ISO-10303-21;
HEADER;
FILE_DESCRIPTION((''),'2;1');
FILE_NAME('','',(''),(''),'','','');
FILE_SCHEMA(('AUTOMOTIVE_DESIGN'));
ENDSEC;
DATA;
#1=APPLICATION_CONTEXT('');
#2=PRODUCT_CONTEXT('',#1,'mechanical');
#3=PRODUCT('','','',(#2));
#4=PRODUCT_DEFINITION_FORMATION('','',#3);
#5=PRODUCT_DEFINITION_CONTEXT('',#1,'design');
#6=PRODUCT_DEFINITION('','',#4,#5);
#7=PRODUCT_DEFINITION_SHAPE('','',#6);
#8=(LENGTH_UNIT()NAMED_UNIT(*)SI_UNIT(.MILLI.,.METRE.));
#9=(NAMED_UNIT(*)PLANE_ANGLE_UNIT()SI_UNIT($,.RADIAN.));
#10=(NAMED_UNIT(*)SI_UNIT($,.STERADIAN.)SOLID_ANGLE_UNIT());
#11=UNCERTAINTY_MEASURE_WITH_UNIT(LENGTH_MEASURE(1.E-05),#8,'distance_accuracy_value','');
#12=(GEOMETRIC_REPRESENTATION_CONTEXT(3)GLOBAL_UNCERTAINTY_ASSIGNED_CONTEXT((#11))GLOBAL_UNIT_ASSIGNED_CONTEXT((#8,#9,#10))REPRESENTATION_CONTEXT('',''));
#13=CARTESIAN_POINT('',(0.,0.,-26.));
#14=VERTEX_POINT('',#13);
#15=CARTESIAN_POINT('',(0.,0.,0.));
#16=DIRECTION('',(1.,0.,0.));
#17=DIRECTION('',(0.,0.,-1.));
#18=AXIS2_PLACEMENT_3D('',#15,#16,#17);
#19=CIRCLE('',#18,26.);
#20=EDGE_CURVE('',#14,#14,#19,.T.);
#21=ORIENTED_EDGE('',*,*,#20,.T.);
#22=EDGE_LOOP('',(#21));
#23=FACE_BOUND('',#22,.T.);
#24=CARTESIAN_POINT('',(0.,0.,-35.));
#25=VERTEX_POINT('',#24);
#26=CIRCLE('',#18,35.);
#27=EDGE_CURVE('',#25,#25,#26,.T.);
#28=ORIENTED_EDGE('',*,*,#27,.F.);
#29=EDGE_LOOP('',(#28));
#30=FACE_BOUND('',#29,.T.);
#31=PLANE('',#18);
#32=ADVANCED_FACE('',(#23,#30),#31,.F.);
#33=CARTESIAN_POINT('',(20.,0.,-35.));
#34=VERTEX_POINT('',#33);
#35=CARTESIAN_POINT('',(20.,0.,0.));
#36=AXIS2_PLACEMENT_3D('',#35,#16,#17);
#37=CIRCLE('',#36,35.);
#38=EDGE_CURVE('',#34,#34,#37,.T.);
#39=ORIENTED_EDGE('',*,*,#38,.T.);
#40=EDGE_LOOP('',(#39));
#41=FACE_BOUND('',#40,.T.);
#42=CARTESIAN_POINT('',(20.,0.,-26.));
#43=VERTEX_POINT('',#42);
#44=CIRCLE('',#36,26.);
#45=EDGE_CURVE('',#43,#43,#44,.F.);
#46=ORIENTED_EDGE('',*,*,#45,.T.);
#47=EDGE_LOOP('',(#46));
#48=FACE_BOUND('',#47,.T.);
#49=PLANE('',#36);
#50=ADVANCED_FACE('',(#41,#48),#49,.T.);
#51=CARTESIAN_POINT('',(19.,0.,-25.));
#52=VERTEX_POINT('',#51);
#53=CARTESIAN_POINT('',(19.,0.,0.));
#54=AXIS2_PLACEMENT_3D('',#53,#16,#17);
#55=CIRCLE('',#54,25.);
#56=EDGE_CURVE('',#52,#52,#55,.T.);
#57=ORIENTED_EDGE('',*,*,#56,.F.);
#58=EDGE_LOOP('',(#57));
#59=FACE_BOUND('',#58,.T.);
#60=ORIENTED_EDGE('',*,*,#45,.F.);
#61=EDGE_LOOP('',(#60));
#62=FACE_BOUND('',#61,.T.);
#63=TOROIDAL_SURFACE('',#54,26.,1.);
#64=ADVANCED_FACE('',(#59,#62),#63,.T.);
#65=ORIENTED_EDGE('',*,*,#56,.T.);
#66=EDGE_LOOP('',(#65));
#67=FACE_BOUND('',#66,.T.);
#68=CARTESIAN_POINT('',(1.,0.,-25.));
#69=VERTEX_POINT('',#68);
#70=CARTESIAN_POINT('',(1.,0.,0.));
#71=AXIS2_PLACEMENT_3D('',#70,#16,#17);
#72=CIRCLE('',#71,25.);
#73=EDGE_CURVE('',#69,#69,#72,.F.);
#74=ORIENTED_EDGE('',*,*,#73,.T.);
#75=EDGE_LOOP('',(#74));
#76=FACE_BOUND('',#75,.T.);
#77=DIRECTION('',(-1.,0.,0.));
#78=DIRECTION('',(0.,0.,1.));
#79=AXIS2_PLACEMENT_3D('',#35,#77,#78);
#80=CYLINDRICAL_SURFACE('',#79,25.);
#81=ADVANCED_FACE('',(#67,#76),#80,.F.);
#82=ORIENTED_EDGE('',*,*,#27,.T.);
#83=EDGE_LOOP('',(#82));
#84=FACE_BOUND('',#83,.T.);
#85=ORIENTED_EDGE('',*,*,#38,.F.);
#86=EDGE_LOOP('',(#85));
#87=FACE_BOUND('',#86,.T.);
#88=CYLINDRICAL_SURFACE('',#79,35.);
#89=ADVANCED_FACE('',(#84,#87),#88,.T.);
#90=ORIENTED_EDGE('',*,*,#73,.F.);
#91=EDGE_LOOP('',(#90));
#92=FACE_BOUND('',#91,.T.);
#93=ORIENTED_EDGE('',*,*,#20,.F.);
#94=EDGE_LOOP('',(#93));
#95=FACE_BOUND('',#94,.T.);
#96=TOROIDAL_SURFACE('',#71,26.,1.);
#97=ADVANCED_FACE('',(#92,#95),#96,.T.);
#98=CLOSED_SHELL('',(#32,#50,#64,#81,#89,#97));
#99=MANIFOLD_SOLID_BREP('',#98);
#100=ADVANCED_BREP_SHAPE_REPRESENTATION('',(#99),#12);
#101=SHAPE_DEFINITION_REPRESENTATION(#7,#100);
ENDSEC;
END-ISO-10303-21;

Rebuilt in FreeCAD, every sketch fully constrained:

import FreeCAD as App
import Part
import Sketcher
from FreeCAD import Vector
Q = App.Units.Quantity


def edges_at(feature, points):
    """Names of the edges that pass closest to the given points."""
    edges = feature.Shape.Edges
    near = lambda p: min(range(len(edges)), key=lambda i: edges[i].distToShape(Part.Vertex(*p))[0])
    return sorted({f"Edge{near(p) + 1}" for p in points})

doc = App.newDocument("Part")
body = doc.addObject("PartDesign::Body", "Body")

# Sketch on YZ plane
sketch1 = body.newObject("Sketcher::SketchObject", "Sketch")
sketch1.AttachmentSupport = (doc.getObject("YZ_Plane"), [""])
sketch1.MapMode = "FlatFace"
sketch1.addGeometry([
    Part.Circle(Vector(0, 0, 0), Vector(0, 0, 1), 35),
    Part.Circle(Vector(0, 0, 0), Vector(0, 0, 1), 25),
], False)
sketch1.addConstraint([
    Sketcher.Constraint("Coincident", 0, 3, -1, 1),
    Sketcher.Constraint("Coincident", 1, 3, -1, 1),
    Sketcher.Constraint("Diameter", 0, Q("70 mm")),
    Sketcher.Constraint("Diameter", 1, Q("50 mm")),
])
pad1 = body.newObject("PartDesign::Pad", "Pad")
pad1.Profile = sketch1
pad1.Length = 20
doc.recompute()

fillet = body.newObject("PartDesign::Fillet", "Fillet")
fillet.Base = (pad1, edges_at(pad1, [(0, 0, 25), (20, 0, 25)]))
fillet.Radius = 1

doc.recompute()
